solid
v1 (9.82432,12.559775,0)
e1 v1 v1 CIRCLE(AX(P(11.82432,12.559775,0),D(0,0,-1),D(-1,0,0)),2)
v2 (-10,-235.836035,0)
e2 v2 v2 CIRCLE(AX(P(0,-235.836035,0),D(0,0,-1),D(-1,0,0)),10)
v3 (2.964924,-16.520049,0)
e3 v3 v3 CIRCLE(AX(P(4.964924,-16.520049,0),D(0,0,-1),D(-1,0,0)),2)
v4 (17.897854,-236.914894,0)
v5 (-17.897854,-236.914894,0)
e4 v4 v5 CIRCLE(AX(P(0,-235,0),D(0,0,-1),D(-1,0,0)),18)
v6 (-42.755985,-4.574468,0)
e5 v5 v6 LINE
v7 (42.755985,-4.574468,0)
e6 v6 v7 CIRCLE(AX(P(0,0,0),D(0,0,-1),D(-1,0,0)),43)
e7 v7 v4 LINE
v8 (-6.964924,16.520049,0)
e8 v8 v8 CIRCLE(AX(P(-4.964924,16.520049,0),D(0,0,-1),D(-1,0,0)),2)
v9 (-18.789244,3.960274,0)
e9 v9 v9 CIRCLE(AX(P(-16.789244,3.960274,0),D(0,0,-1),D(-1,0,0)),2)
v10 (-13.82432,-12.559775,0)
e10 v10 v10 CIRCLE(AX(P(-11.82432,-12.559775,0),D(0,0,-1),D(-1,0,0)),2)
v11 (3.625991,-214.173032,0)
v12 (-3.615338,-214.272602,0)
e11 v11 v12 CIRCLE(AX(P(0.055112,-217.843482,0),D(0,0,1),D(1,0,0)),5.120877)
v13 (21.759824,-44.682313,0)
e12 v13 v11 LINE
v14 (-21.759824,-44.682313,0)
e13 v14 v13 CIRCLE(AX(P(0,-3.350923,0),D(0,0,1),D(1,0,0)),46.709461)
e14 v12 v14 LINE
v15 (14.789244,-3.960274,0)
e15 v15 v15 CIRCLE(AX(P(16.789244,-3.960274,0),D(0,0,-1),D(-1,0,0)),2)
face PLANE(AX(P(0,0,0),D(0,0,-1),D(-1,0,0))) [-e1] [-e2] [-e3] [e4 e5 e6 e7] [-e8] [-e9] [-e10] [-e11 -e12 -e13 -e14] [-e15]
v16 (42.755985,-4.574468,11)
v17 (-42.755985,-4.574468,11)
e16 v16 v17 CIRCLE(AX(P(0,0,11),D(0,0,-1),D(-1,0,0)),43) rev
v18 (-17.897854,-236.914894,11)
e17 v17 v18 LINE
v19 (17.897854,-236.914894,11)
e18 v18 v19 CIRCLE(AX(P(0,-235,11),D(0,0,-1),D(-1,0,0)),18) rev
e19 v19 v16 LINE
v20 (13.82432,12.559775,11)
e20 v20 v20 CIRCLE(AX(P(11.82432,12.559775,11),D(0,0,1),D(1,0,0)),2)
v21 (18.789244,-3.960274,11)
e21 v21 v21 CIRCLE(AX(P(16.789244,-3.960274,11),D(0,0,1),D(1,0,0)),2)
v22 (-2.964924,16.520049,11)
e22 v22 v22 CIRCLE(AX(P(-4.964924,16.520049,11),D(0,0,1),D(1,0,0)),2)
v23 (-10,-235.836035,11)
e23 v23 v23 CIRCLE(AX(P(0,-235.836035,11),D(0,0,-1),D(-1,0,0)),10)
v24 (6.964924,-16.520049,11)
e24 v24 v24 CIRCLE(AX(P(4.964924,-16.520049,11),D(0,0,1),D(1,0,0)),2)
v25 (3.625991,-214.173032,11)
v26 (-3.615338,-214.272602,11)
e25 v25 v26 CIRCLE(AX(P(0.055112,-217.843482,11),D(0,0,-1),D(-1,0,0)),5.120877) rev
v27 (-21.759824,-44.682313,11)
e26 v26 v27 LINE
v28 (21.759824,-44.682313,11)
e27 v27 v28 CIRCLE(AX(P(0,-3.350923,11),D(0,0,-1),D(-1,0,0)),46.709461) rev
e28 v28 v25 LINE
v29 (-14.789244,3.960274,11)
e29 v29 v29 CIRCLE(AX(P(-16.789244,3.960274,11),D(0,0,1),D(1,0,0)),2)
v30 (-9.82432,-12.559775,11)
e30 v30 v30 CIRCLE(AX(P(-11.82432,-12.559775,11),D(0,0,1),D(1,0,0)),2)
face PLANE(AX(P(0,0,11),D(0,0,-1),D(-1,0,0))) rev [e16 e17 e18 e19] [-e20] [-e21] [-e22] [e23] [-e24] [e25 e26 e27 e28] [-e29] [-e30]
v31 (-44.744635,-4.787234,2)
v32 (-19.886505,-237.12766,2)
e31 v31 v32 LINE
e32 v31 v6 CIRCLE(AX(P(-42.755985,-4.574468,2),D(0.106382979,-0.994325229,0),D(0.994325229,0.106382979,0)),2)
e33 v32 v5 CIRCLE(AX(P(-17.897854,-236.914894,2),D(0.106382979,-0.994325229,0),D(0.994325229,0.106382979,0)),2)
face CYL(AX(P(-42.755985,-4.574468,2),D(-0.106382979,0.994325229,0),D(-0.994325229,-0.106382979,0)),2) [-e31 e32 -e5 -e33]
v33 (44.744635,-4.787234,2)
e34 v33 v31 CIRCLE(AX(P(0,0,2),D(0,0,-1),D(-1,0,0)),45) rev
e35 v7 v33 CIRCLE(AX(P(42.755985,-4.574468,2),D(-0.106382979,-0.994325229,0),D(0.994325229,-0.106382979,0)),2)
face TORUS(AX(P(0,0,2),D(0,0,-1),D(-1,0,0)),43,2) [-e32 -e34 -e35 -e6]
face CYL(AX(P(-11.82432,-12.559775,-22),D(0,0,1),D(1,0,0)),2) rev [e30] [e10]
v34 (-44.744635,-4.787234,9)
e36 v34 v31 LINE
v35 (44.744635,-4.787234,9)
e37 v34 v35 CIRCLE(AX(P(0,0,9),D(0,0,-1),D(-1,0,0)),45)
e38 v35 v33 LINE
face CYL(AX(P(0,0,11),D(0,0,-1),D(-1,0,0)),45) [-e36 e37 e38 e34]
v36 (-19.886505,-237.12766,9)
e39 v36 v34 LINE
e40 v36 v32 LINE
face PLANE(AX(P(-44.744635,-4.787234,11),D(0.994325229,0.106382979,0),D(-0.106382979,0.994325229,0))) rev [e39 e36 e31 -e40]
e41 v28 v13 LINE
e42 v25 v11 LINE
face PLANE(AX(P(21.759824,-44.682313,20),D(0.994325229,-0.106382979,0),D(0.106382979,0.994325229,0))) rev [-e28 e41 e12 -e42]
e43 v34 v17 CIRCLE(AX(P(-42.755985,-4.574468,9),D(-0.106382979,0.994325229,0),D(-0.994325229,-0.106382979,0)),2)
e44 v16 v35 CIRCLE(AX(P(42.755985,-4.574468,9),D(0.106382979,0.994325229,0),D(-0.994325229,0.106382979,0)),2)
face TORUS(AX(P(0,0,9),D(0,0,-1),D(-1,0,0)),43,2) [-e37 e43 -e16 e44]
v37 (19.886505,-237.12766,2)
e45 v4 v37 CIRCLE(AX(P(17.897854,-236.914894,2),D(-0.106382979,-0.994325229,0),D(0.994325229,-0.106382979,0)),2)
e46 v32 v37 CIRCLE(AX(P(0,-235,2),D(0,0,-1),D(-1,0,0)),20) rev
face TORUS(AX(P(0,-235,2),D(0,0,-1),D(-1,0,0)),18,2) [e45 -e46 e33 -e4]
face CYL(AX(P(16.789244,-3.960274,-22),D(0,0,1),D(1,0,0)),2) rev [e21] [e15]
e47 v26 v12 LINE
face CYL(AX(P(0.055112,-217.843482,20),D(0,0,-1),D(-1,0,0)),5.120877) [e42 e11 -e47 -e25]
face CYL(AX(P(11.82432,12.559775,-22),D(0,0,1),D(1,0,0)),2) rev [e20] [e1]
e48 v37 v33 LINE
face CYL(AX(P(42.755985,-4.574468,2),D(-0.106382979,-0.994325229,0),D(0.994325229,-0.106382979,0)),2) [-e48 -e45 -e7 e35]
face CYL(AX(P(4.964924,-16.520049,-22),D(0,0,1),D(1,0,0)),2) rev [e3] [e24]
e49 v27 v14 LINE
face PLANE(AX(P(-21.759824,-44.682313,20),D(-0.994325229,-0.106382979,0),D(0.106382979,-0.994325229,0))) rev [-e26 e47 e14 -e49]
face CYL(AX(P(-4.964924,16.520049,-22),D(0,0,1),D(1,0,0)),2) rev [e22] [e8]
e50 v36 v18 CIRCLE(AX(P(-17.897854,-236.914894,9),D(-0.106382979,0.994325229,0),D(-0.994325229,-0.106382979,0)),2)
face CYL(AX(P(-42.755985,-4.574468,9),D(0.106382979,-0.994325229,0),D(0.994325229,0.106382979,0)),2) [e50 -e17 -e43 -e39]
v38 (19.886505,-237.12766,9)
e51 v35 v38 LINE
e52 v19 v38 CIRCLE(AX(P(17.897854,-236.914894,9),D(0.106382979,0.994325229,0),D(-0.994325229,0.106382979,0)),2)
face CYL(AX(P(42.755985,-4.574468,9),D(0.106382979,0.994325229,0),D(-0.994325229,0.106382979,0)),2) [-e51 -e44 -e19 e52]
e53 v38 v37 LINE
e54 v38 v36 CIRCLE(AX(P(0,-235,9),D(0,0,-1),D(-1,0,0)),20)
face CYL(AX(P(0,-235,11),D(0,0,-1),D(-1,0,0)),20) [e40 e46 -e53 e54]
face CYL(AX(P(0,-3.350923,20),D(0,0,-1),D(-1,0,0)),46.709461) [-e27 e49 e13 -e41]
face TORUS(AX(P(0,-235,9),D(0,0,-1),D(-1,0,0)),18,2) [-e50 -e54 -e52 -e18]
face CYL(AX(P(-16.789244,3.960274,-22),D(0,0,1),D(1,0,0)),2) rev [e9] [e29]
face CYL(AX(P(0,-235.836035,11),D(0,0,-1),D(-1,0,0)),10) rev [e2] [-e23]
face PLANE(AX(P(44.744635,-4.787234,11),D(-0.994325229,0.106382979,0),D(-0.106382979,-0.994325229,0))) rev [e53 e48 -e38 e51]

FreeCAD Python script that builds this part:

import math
import FreeCAD as App
import Part
import Sketcher

V = App.Vector
Q = App.Units.Quantity


def edges_at(feature, points):
    """Names of the edges that pass closest to the given points."""
    edges = feature.Shape.Edges
    near = lambda p: min(range(len(edges)), key=lambda i: edges[i].distToShape(Part.Vertex(*p))[0])
    return sorted({f"Edge{near(p) + 1}" for p in points})

doc = App.newDocument("Part")
params = doc.addObject("Spreadsheet::Sheet", "Params")
for row, (alias, value) in enumerate([
    ("sketch1_radius", "20 mm"),
    ("sketch1_radius2", "45 mm"),
    ("pad1_length", "11 mm"),
    ("sketch2_diameter", "20 mm"),
    ("pocket1_length", "11 mm"),
    ("fillet_radius", "2 mm"),
    ("pocket2_length", "20 mm"),
    ("sketch4_diameter", "4 mm"),
    ("pocket3_length", "33 mm"),
], start=1):
    params.set(f"A{row}", alias)
    params.set(f"B{row}", "=" + value)
    params.setAlias(f"B{row}", alias)

body = doc.addObject("PartDesign::Body", "Body")

# Sketch on XY plane
sketch1 = body.newObject("Sketcher::SketchObject", "Sketch")
sketch1.AttachmentSupport = (doc.getObject("XY_Plane"), [""])
sketch1.MapMode = "FlatFace"
sketch1.addGeometry([
    Part.LineSegment(V(-45, -5, 0), V(-20, -237, 0)),
    Part.ArcOfCircle(Part.Circle(V(0, -235, 0), V(0, 0, 1), 20), math.radians(-174), math.radians(-6)),
    Part.LineSegment(V(20, -237, 0), V(45, -5, 0)),
    Part.ArcOfCircle(Part.Circle(V(0, 0, 0), V(0, 0, 1), 45), math.radians(-6), math.radians(186)),
], False)
sketch1.addConstraint([
    Sketcher.Constraint("Tangent", 0, 2, 1, 1),
    Sketcher.Constraint("Tangent", 1, 2, 2, 1),
    Sketcher.Constraint("Tangent", 2, 2, 3, 1),
    Sketcher.Constraint("Tangent", 3, 2, 0, 1),
    Sketcher.Constraint("Coincident", 3, 3, -1, 1),
    Sketcher.Constraint("PointOnObject", 1, 3, -2),
    Sketcher.Constraint("Radius", 1, Q("20 mm")),
    Sketcher.Constraint("Radius", 3, Q("45 mm")),
    Sketcher.Constraint("DistanceY", 1, 3, -1, 1, Q("235 mm")),
])
sketch1.setExpression("Constraints[6]", "Params.sketch1_radius")
sketch1.setExpression("Constraints[7]", "Params.sketch1_radius2")
pad1 = body.newObject("PartDesign::Pad", "Pad")
pad1.Profile = sketch1
pad1.setExpression("Length", "Params.pad1_length")

# Sketch on XY plane
sketch2 = body.newObject("Sketcher::SketchObject", "Sketch001")
sketch2.AttachmentSupport = (doc.getObject("XY_Plane"), [""])
sketch2.MapMode = "FlatFace"
sketch2.addGeometry(Part.Circle(V(0, -236, 0), V(0, 0, 1), 10), False)
sketch2.addConstraint([
    Sketcher.Constraint("PointOnObject", 0, 3, -2),
    Sketcher.Constraint("Diameter", 0, Q("20 mm")),
    Sketcher.Constraint("DistanceY", 0, 3, -1, 1, Q("235.836035 mm")),
])
sketch2.setExpression("Constraints[1]", "Params.sketch2_diameter")
pocket1 = body.newObject("PartDesign::Pocket", "Pocket")
pocket1.Profile = sketch2
pocket1.setExpression("Length", "Params.pocket1_length")
pocket1.Reversed = True
doc.recompute()

fillet = body.newObject("PartDesign::Fillet", "Fillet")
fillet.Base = (pocket1, edges_at(pocket1, [
    (0, -255, 11),
    (32.316, -120.957, 11),
    (0, 45, 11),
    (32.316, -120.957, 0),
    (0, -255, 0),
    (-32.316, -120.957, 0),
    (0, 45, 0),
    (-32.316, -120.957, 11),
]))
fillet.setExpression("Radius", "Params.fillet_radius")

# Sketch on XY plane
sketch3 = body.newObject("Sketcher::SketchObject", "Sketch002")
sketch3.AttachmentSupport = (doc.getObject("XY_Plane"), [""])
sketch3.MapMode = "FlatFace"
sketch3.addGeometry([
    Part.LineSegment(V(22, -45, 0), V(4, -214, 0)),
    Part.ArcOfCircle(Part.Circle(V(0, -218, 0), V(0, 0, 1), 5), math.radians(46), math.radians(136)),
    Part.LineSegment(V(-4, -214, 0), V(-22, -45, 0)),
    Part.ArcOfCircle(Part.Circle(V(0, -3, 0), V(0, 0, 1), 47), math.radians(-118), math.radians(-62)),
], False)
sketch3.addConstraint([
    Sketcher.Constraint("Coincident", 0, 2, 1, 1),
    Sketcher.Constraint("Coincident", 1, 2, 2, 1),
    Sketcher.Constraint("Coincident", 2, 2, 3, 1),
    Sketcher.Constraint("Coincident", 3, 2, 0, 1),
    Sketcher.Constraint("Symmetric", 2, 2, 3, 2, -2),
    Sketcher.Constraint("Radius", 3, Q("46.709461 mm")),
    Sketcher.Constraint("Radius", 1, Q("5.120877 mm")),
    Sketcher.Constraint("Distance", 0, Q("170.45803 mm")),
    Sketcher.Constraint("Distance", 2, Q("170.558168 mm")),
    Sketcher.Constraint("DistanceX", -1, 1, 1, 3, Q("0.055112 mm")),
    Sketcher.Constraint("DistanceX", -1, 1, 0, 2, Q("3.625991 mm")),
    Sketcher.Constraint("DistanceY", 1, 3, 3, 3, Q("214.492559 mm")),
    Sketcher.Constraint("DistanceY", 1, 3, -1, 1, Q("217.843482 mm")),
])
pocket2 = body.newObject("PartDesign::Pocket", "Pocket001")
pocket2.Profile = sketch3
pocket2.setExpression("Length", "Params.pocket2_length")
pocket2.Reversed = True

# Sketch on XY plane
sketch4 = body.newObject("Sketcher::SketchObject", "Sketch003")
sketch4.AttachmentSupport = (doc.getObject("XY_Plane"), [""])
sketch4.MapMode = "FlatFace"
sketch4.AttachmentOffset = App.Placement(V(0, 0, 11), App.Rotation())
sketch4.addGeometry([
    Part.Circle(V(-16.8, 4, 0), V(0, 0, 1), 2),  # 0
    Part.Circle(V(-5, 16.5, 0), V(0, 0, 1), 2),  # 1
    Part.Circle(V(11.8, 12.6, 0), V(0, 0, 1), 2),  # 2
    Part.Circle(V(16.8, -4, 0), V(0, 0, 1), 2),  # 3
    Part.Circle(V(5, -16.5, 0), V(0, 0, 1), 2),  # 4
    Part.Circle(V(-11.8, -12.6, 0), V(0, 0, 1), 2),  # 5
], False)
sketch4.addConstraint([
    Sketcher.Constraint("Equal", 0, 1),
    Sketcher.Constraint("Equal", 1, 2),
    Sketcher.Constraint("Equal", 2, 3),
    Sketcher.Constraint("Equal", 3, 4),
    Sketcher.Constraint("Equal", 4, 5),
    Sketcher.Constraint("Symmetric", 0, 3, 3, 3, -1, 1),
    Sketcher.Constraint("Symmetric", 1, 3, 4, 3, -1, 1),
    Sketcher.Constraint("Symmetric", 2, 3, 5, 3, -1, 1),
    Sketcher.Constraint("Diameter", 0, Q("4 mm")),
    Sketcher.Constraint("DistanceY", 0, 3, 2, 3, Q("8.599501 mm")),
    Sketcher.Constraint("DistanceY", 4, 3, 1, 3, Q("33.040099 mm")),
    Sketcher.Constraint("DistanceX", -1, 1, 2, 3, Q("11.82432 mm")),
    Sketcher.Constraint("DistanceX", 0, 3, 1, 3, Q("11.82432 mm")),
    Sketcher.Constraint("DistanceY", 3, 3, 2, 3, Q("16.520049 mm")),
    Sketcher.Constraint("DistanceX", 1, 3, 3, 3, Q("21.754168 mm")),
])
sketch4.setExpression("Constraints[8]", "Params.sketch4_diameter")
pocket3 = body.newObject("PartDesign::Pocket", "Pocket002")
pocket3.Profile = sketch4
pocket3.setExpression("Length", "Params.pocket3_length")

doc.recompute()
